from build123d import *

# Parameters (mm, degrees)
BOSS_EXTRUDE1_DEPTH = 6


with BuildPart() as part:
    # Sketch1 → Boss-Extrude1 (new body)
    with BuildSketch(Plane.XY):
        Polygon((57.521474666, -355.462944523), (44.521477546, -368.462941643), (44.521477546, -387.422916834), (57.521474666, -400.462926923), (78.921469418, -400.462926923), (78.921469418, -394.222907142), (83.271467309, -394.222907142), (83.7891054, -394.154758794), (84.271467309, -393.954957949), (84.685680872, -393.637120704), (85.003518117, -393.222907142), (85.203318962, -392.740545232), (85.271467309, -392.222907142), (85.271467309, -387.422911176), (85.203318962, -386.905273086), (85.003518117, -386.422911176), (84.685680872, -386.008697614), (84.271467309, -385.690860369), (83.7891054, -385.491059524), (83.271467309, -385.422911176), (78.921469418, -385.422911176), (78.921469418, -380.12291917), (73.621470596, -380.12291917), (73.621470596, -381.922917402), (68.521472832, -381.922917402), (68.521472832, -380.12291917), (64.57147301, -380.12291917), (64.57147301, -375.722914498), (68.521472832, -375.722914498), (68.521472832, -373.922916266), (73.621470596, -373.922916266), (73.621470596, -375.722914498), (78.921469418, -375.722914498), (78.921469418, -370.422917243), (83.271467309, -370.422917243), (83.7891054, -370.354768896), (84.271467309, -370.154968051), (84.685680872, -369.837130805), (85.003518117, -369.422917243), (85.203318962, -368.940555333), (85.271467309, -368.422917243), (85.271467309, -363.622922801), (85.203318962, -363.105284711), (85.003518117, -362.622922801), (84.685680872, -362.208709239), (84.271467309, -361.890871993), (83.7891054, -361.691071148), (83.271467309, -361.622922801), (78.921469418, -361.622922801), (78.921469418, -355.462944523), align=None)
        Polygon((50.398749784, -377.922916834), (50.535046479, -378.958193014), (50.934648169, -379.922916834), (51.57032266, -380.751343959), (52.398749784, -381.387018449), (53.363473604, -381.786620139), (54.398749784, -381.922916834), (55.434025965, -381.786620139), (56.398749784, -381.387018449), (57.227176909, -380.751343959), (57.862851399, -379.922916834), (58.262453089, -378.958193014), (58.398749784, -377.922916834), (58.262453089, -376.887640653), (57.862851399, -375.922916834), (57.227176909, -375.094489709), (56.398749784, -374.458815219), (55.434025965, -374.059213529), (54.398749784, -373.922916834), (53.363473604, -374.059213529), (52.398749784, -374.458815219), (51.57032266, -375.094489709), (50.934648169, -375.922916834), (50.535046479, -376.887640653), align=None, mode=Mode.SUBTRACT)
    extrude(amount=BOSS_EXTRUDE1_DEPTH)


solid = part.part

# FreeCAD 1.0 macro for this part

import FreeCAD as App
import Part
import Sketcher
Q = App.Units.Quantity

doc = App.newDocument("Part")
params = doc.addObject("Spreadsheet::Sheet", "Params")
for row, (alias, value) in enumerate([
    ("sketch1_width", "5.299999 mm"),
    ("sketch1_height", "1.799998 mm"),
    ("sketch1_width2", "3.95 mm"),
    ("pad1_length", "6 mm"),
], start=1):
    params.set(f"A{row}", alias)
    params.set(f"B{row}", "=" + value)
    params.setAlias(f"B{row}", alias)

body = doc.addObject("PartDesign::Body", "Body")

sketch1 = body.newObject("Sketcher::SketchObject", "Sketch")
sketch1.AttachmentSupport = (doc.getObject("XY_Plane"), [""])
sketch1.MapMode = "FlatFace"
sketch1.addGeometry(Part.LineSegment(App.Vector(57.521475, -355.462945, 0), App.Vector(44.521478, -368.462942, 0)), False)
sketch1.addGeometry(Part.LineSegment(App.Vector(44.521478, -368.462942, 0), App.Vector(44.521478, -387.422917, 0)), False)
sketch1.addGeometry(Part.LineSegment(App.Vector(44.521478, -387.422917, 0), App.Vector(57.521475, -400.462927, 0)), False)
sketch1.addGeometry(Part.LineSegment(App.Vector(57.521475, -400.462927, 0), App.Vector(78.921469, -400.462927, 0)), False)
sketch1.addGeometry(Part.LineSegment(App.Vector(78.921469, -400.462927, 0), App.Vector(78.921469, -394.222907, 0)), False)
sketch1.addGeometry(Part.LineSegment(App.Vector(78.921469, -394.222907, 0), App.Vector(83.271467, -394.222907, 0)), False)
sketch1.addGeometry(Part.LineSegment(App.Vector(83.271467, -394.222907, 0), App.Vector(83.789105, -394.154759, 0)), False)
sketch1.addGeometry(Part.LineSegment(App.Vector(83.789105, -394.154759, 0), App.Vector(84.271467, -393.954958, 0)), False)
sketch1.addGeometry(Part.LineSegment(App.Vector(84.271467, -393.954958, 0), App.Vector(84.685681, -393.637121, 0)), False)
sketch1.addGeometry(Part.LineSegment(App.Vector(84.685681, -393.637121, 0), App.Vector(85.003518, -393.222907, 0)), False)
sketch1.addGeometry(Part.LineSegment(App.Vector(85.003518, -393.222907, 0), App.Vector(85.203319, -392.740545, 0)), False)
sketch1.addGeometry(Part.LineSegment(App.Vector(85.203319, -392.740545, 0), App.Vector(85.271467, -392.222907, 0)), False)
sketch1.addGeometry(Part.LineSegment(App.Vector(85.271467, -392.222907, 0), App.Vector(85.271467, -387.422911, 0)), False)
sketch1.addGeometry(Part.LineSegment(App.Vector(85.271467, -387.422911, 0), App.Vector(85.203319, -386.905273, 0)), False)
sketch1.addGeometry(Part.LineSegment(App.Vector(85.203319, -386.905273, 0), App.Vector(85.003518, -386.422911, 0)), False)
sketch1.addGeometry(Part.LineSegment(App.Vector(85.003518, -386.422911, 0), App.Vector(84.685681, -386.008698, 0)), False)
sketch1.addGeometry(Part.LineSegment(App.Vector(84.685681, -386.008698, 0), App.Vector(84.271467, -385.69086, 0)), False)
sketch1.addGeometry(Part.LineSegment(App.Vector(84.271467, -385.69086, 0), App.Vector(83.789105, -385.49106, 0)), False)
sketch1.addGeometry(Part.LineSegment(App.Vector(83.789105, -385.49106, 0), App.Vector(83.271467, -385.422911, 0)), False)
sketch1.addGeometry(Part.LineSegment(App.Vector(83.271467, -385.422911, 0), App.Vector(78.921469, -385.422911, 0)), False)
sketch1.addGeometry(Part.LineSegment(App.Vector(78.921469, -385.422911, 0), App.Vector(78.921469, -380.122919, 0)), False)
sketch1.addGeometry(Part.LineSegment(App.Vector(78.921469, -380.122919, 0), App.Vector(73.621471, -380.122919, 0)), False)
sketch1.addGeometry(Part.LineSegment(App.Vector(73.621471, -380.122919, 0), App.Vector(73.621471, -381.922917, 0)), False)
sketch1.addGeometry(Part.LineSegment(App.Vector(73.621471, -381.922917, 0), App.Vector(68.521473, -381.922917, 0)), False)
sketch1.addGeometry(Part.LineSegment(App.Vector(68.521473, -381.922917, 0), App.Vector(68.521473, -380.122919, 0)), False)
sketch1.addGeometry(Part.LineSegment(App.Vector(68.521473, -380.122919, 0), App.Vector(64.571473, -380.122919, 0)), False)
sketch1.addGeometry(Part.LineSegment(App.Vector(64.571473, -380.122919, 0), App.Vector(64.571473, -375.722914, 0)), False)
sketch1.addGeometry(Part.LineSegment(App.Vector(64.571473, -375.722914, 0), App.Vector(68.521473, -375.722914, 0)), False)
sketch1.addGeometry(Part.LineSegment(App.Vector(68.521473, -375.722914, 0), App.Vector(68.521473, -373.922916, 0)), False)
sketch1.addGeometry(Part.LineSegment(App.Vector(68.521473, -373.922916, 0), App.Vector(73.621471, -373.922916, 0)), False)
sketch1.addGeometry(Part.LineSegment(App.Vector(73.621471, -373.922916, 0), App.Vector(73.621471, -375.722914, 0)), False)
sketch1.addGeometry(Part.LineSegment(App.Vector(73.621471, -375.722914, 0), App.Vector(78.921469, -375.722914, 0)), False)
sketch1.addGeometry(Part.LineSegment(App.Vector(78.921469, -375.722914, 0), App.Vector(78.921469, -370.422917, 0)), False)
sketch1.addGeometry(Part.LineSegment(App.Vector(78.921469, -370.422917, 0), App.Vector(83.271467, -370.422917, 0)), False)
sketch1.addGeometry(Part.LineSegment(App.Vector(83.271467, -370.422917, 0), App.Vector(83.789105, -370.354769, 0)), False)
sketch1.addGeometry(Part.LineSegment(App.Vector(83.789105, -370.354769, 0), App.Vector(84.271467, -370.154968, 0)), False)
sketch1.addGeometry(Part.LineSegment(App.Vector(84.271467, -370.154968, 0), App.Vector(84.685681, -369.837131, 0)), False)
sketch1.addGeometry(Part.LineSegment(App.Vector(84.685681, -369.837131, 0), App.Vector(85.003518, -369.422917, 0)), False)
sketch1.addGeometry(Part.LineSegment(App.Vector(85.003518, -369.422917, 0), App.Vector(85.203319, -368.940555, 0)), False)
sketch1.addGeometry(Part.LineSegment(App.Vector(85.203319, -368.940555, 0), App.Vector(85.271467, -368.422917, 0)), False)
sketch1.addGeometry(Part.LineSegment(App.Vector(85.271467, -368.422917, 0), App.Vector(85.271467, -363.622923, 0)), False)
sketch1.addGeometry(Part.LineSegment(App.Vector(85.271467, -363.622923, 0), App.Vector(85.203319, -363.105285, 0)), False)
sketch1.addGeometry(Part.LineSegment(App.Vector(85.203319, -363.105285, 0), App.Vector(85.003518, -362.622923, 0)), False)
sketch1.addGeometry(Part.LineSegment(App.Vector(85.003518, -362.622923, 0), App.Vector(84.685681, -362.208709, 0)), False)
sketch1.addGeometry(Part.LineSegment(App.Vector(84.685681, -362.208709, 0), App.Vector(84.271467, -361.890872, 0)), False)
sketch1.addGeometry(Part.LineSegment(App.Vector(84.271467, -361.890872, 0), App.Vector(83.789105, -361.691071, 0)), False)
sketch1.addGeometry(Part.LineSegment(App.Vector(83.789105, -361.691071, 0), App.Vector(83.271467, -361.622923, 0)), False)
sketch1.addGeometry(Part.LineSegment(App.Vector(83.271467, -361.622923, 0), App.Vector(78.921469, -361.622923, 0)), False)
sketch1.addGeometry(Part.LineSegment(App.Vector(78.921469, -361.622923, 0), App.Vector(78.921469, -355.462945, 0)), False)
sketch1.addGeometry(Part.LineSegment(App.Vector(78.921469, -355.462945, 0), App.Vector(57.521475, -355.462945, 0)), False)
sketch1.addGeometry(Part.LineSegment(App.Vector(50.535046, -378.958193, 0), App.Vector(50.39875, -377.922917, 0)), False)
sketch1.addGeometry(Part.LineSegment(App.Vector(50.39875, -377.922917, 0), App.Vector(50.535046, -376.887641, 0)), False)
sketch1.addGeometry(Part.LineSegment(App.Vector(50.535046, -376.887641, 0), App.Vector(50.934648, -375.922917, 0)), False)
sketch1.addGeometry(Part.LineSegment(App.Vector(50.934648, -375.922917, 0), App.Vector(51.570323, -375.09449, 0)), False)
sketch1.addGeometry(Part.LineSegment(App.Vector(51.570323, -375.09449, 0), App.Vector(52.39875, -374.458815, 0)), False)
sketch1.addGeometry(Part.LineSegment(App.Vector(52.39875, -374.458815, 0), App.Vector(53.363474, -374.059214, 0)), False)
sketch1.addGeometry(Part.LineSegment(App.Vector(53.363474, -374.059214, 0), App.Vector(54.39875, -373.922917, 0)), False)
sketch1.addGeometry(Part.LineSegment(App.Vector(54.39875, -373.922917, 0), App.Vector(55.434026, -374.059214, 0)), False)
sketch1.addGeometry(Part.LineSegment(App.Vector(55.434026, -374.059214, 0), App.Vector(56.39875, -374.458815, 0)), False)
sketch1.addGeometry(Part.LineSegment(App.Vector(56.39875, -374.458815, 0), App.Vector(57.227177, -375.09449, 0)), False)
sketch1.addGeometry(Part.LineSegment(App.Vector(57.227177, -375.09449, 0), App.Vector(57.862851, -375.922917, 0)), False)
sketch1.addGeometry(Part.LineSegment(App.Vector(57.862851, -375.922917, 0), App.Vector(58.262453, -376.887641, 0)), False)
sketch1.addGeometry(Part.LineSegment(App.Vector(58.262453, -376.887641, 0), App.Vector(58.39875, -377.922917, 0)), False)
sketch1.addGeometry(Part.LineSegment(App.Vector(58.39875, -377.922917, 0), App.Vector(58.262453, -378.958193, 0)), False)
sketch1.addGeometry(Part.LineSegment(App.Vector(58.262453, -378.958193, 0), App.Vector(57.862851, -379.922917, 0)), False)
sketch1.addGeometry(Part.LineSegment(App.Vector(57.862851, -379.922917, 0), App.Vector(57.227177, -380.751344, 0)), False)
sketch1.addGeometry(Part.LineSegment(App.Vector(57.227177, -380.751344, 0), App.Vector(56.39875, -381.387018, 0)), False)
sketch1.addGeometry(Part.LineSegment(App.Vector(56.39875, -381.387018, 0), App.Vector(55.434026, -381.78662, 0)), False)
sketch1.addGeometry(Part.LineSegment(App.Vector(55.434026, -381.78662, 0), App.Vector(54.39875, -381.922917, 0)), False)
sketch1.addGeometry(Part.LineSegment(App.Vector(54.39875, -381.922917, 0), App.Vector(53.363474, -381.78662, 0)), False)
sketch1.addGeometry(Part.LineSegment(App.Vector(53.363474, -381.78662, 0), App.Vector(52.39875, -381.387018, 0)), False)
sketch1.addGeometry(Part.LineSegment(App.Vector(52.39875, -381.387018, 0), App.Vector(51.570323, -380.751344, 0)), False)
sketch1.addGeometry(Part.LineSegment(App.Vector(51.570323, -380.751344, 0), App.Vector(50.934648, -379.922917, 0)), False)
sketch1.addGeometry(Part.LineSegment(App.Vector(50.934648, -379.922917, 0), App.Vector(50.535046, -378.958193, 0)), False)
sketch1.addConstraint(Sketcher.Constraint("Coincident", 0, 2, 1, 1))
sketch1.addConstraint(Sketcher.Constraint("Coincident", 1, 2, 2, 1))
sketch1.addConstraint(Sketcher.Constraint("Coincident", 2, 2, 3, 1))
sketch1.addConstraint(Sketcher.Constraint("Coincident", 3, 2, 4, 1))
sketch1.addConstraint(Sketcher.Constraint("Coincident", 4, 2, 5, 1))
sketch1.addConstraint(Sketcher.Constraint("Coincident", 5, 2, 6, 1))
sketch1.addConstraint(Sketcher.Constraint("Coincident", 6, 2, 7, 1))
sketch1.addConstraint(Sketcher.Constraint("Coincident", 7, 2, 8, 1))
sketch1.addConstraint(Sketcher.Constraint("Coincident", 8, 2, 9, 1))
sketch1.addConstraint(Sketcher.Constraint("Coincident", 9, 2, 10, 1))
sketch1.addConstraint(Sketcher.Constraint("Coincident", 10, 2, 11, 1))
sketch1.addConstraint(Sketcher.Constraint("Coincident", 11, 2, 12, 1))
sketch1.addConstraint(Sketcher.Constraint("Coincident", 12, 2, 13, 1))
sketch1.addConstraint(Sketcher.Constraint("Coincident", 13, 2, 14, 1))
sketch1.addConstraint(Sketcher.Constraint("Coincident", 14, 2, 15, 1))
sketch1.addConstraint(Sketcher.Constraint("Coincident", 15, 2, 16, 1))
sketch1.addConstraint(Sketcher.Constraint("Coincident", 16, 2, 17, 1))
sketch1.addConstraint(Sketcher.Constraint("Coincident", 17, 2, 18, 1))
sketch1.addConstraint(Sketcher.Constraint("Coincident", 18, 2, 19, 1))
sketch1.addConstraint(Sketcher.Constraint("Coincident", 19, 2, 20, 1))
sketch1.addConstraint(Sketcher.Constraint("Coincident", 20, 2, 21, 1))
sketch1.addConstraint(Sketcher.Constraint("Coincident", 21, 2, 22, 1))
sketch1.addConstraint(Sketcher.Constraint("Coincident", 22, 2, 23, 1))
sketch1.addConstraint(Sketcher.Constraint("Coincident", 23, 2, 24, 1))
sketch1.addConstraint(Sketcher.Constraint("Coincident", 24, 2, 25, 1))
sketch1.addConstraint(Sketcher.Constraint("Coincident", 25, 2, 26, 1))
sketch1.addConstraint(Sketcher.Constraint("Coincident", 26, 2, 27, 1))
sketch1.addConstraint(Sketcher.Constraint("Coincident", 27, 2, 28, 1))
sketch1.addConstraint(Sketcher.Constraint("Coincident", 28, 2, 29, 1))
sketch1.addConstraint(Sketcher.Constraint("Coincident", 29, 2, 30, 1))
sketch1.addConstraint(Sketcher.Constraint("Coincident", 30, 2, 31, 1))
sketch1.addConstraint(Sketcher.Constraint("Coincident", 31, 2, 32, 1))
sketch1.addConstraint(Sketcher.Constraint("Coincident", 32, 2, 33, 1))
sketch1.addConstraint(Sketcher.Constraint("Coincident", 33, 2, 34, 1))
sketch1.addConstraint(Sketcher.Constraint("Coincident", 34, 2, 35, 1))
sketch1.addConstraint(Sketcher.Constraint("Coincident", 35, 2, 36, 1))
sketch1.addConstraint(Sketcher.Constraint("Coincident", 36, 2, 37, 1))
sketch1.addConstraint(Sketcher.Constraint("Coincident", 37, 2, 38, 1))
sketch1.addConstraint(Sketcher.Constraint("Coincident", 38, 2, 39, 1))
sketch1.addConstraint(Sketcher.Constraint("Coincident", 39, 2, 40, 1))
sketch1.addConstraint(Sketcher.Constraint("Coincident", 40, 2, 41, 1))
sketch1.addConstraint(Sketcher.Constraint("Coincident", 41, 2, 42, 1))
sketch1.addConstraint(Sketcher.Constraint("Coincident", 42, 2, 43, 1))
sketch1.addConstraint(Sketcher.Constraint("Coincident", 43, 2, 44, 1))
sketch1.addConstraint(Sketcher.Constraint("Coincident", 44, 2, 45, 1))
sketch1.addConstraint(Sketcher.Constraint("Coincident", 45, 2, 46, 1))
sketch1.addConstraint(Sketcher.Constraint("Coincident", 46, 2, 47, 1))
sketch1.addConstraint(Sketcher.Constraint("Coincident", 47, 2, 48, 1))
sketch1.addConstraint(Sketcher.Constraint("Coincident", 48, 2, 49, 1))
sketch1.addConstraint(Sketcher.Constraint("Coincident", 49, 2, 0, 1))
sketch1.addConstraint(Sketcher.Constraint("Coincident", 50, 2, 51, 1))
sketch1.addConstraint(Sketcher.Constraint("Coincident", 51, 2, 52, 1))
sketch1.addConstraint(Sketcher.Constraint("Coincident", 52, 2, 53, 1))
sketch1.addConstraint(Sketcher.Constraint("Coincident", 53, 2, 54, 1))
sketch1.addConstraint(Sketcher.Constraint("Coincident", 54, 2, 55, 1))
sketch1.addConstraint(Sketcher.Constraint("Coincident", 55, 2, 56, 1))
sketch1.addConstraint(Sketcher.Constraint("Coincident", 56, 2, 57, 1))
sketch1.addConstraint(Sketcher.Constraint("Coincident", 57, 2, 58, 1))
sketch1.addConstraint(Sketcher.Constraint("Coincident", 58, 2, 59, 1))
sketch1.addConstraint(Sketcher.Constraint("Coincident", 59, 2, 60, 1))
sketch1.addConstraint(Sketcher.Constraint("Coincident", 60, 2, 61, 1))
sketch1.addConstraint(Sketcher.Constraint("Coincident", 61, 2, 62, 1))
sketch1.addConstraint(Sketcher.Constraint("Coincident", 62, 2, 63, 1))
sketch1.addConstraint(Sketcher.Constraint("Coincident", 63, 2, 64, 1))
sketch1.addConstraint(Sketcher.Constraint("Coincident", 64, 2, 65, 1))
sketch1.addConstraint(Sketcher.Constraint("Coincident", 65, 2, 66, 1))
sketch1.addConstraint(Sketcher.Constraint("Coincident", 66, 2, 67, 1))
sketch1.addConstraint(Sketcher.Constraint("Coincident", 67, 2, 68, 1))
sketch1.addConstraint(Sketcher.Constraint("Coincident", 68, 2, 69, 1))
sketch1.addConstraint(Sketcher.Constraint("Coincident", 69, 2, 70, 1))
sketch1.addConstraint(Sketcher.Constraint("Coincident", 70, 2, 71, 1))
sketch1.addConstraint(Sketcher.Constraint("Coincident", 71, 2, 72, 1))
sketch1.addConstraint(Sketcher.Constraint("Coincident", 72, 2, 73, 1))
sketch1.addConstraint(Sketcher.Constraint("Coincident", 73, 2, 50, 1))
sketch1.addConstraint(Sketcher.Constraint("Vertical", 1))
sketch1.addConstraint(Sketcher.Constraint("Horizontal", 3))
sketch1.addConstraint(Sketcher.Constraint("Vertical", 4))
sketch1.addConstraint(Sketcher.Constraint("Horizontal", 5))
sketch1.addConstraint(Sketcher.Constraint("Vertical", 12))
sketch1.addConstraint(Sketcher.Constraint("Horizontal", 19))
sketch1.addConstraint(Sketcher.Constraint("Vertical", 20))
sketch1.addConstraint(Sketcher.Constraint("Horizontal", 21))
sketch1.addConstraint(Sketcher.Constraint("Vertical", 22))
sketch1.addConstraint(Sketcher.Constraint("Horizontal", 23))
sketch1.addConstraint(Sketcher.Constraint("Vertical", 24))
sketch1.addConstraint(Sketcher.Constraint("Horizontal", 25))
sketch1.addConstraint(Sketcher.Constraint("Vertical", 26))
sketch1.addConstraint(Sketcher.Constraint("Horizontal", 27))
sketch1.addConstraint(Sketcher.Constraint("Vertical", 28))
sketch1.addConstraint(Sketcher.Constraint("Horizontal", 29))
sketch1.addConstraint(Sketcher.Constraint("Vertical", 30))
sketch1.addConstraint(Sketcher.Constraint("Horizontal", 31))
sketch1.addConstraint(Sketcher.Constraint("Vertical", 32))
sketch1.addConstraint(Sketcher.Constraint("Horizontal", 33))
sketch1.addConstraint(Sketcher.Constraint("Vertical", 40))
sketch1.addConstraint(Sketcher.Constraint("Horizontal", 47))
sketch1.addConstraint(Sketcher.Constraint("Vertical", 48))
sketch1.addConstraint(Sketcher.Constraint("Horizontal", 49))
sketch1.addConstraint(Sketcher.Constraint("Perpendicular", 6, 13))
sketch1.addConstraint(Sketcher.Constraint("Perpendicular", 7, 14))
sketch1.addConstraint(Sketcher.Constraint("Perpendicular", 8, 15))
sketch1.addConstraint(Sketcher.Constraint("Perpendicular", 9, 16))
sketch1.addConstraint(Sketcher.Constraint("Perpendicular", 10, 17))
sketch1.addConstraint(Sketcher.Constraint("Perpendicular", 11, 18))
sketch1.addConstraint(Sketcher.Constraint("Perpendicular", 13, 34))
sketch1.addConstraint(Sketcher.Constraint("Perpendicular", 14, 35))
sketch1.addConstraint(Sketcher.Constraint("Perpendicular", 15, 36))
sketch1.addConstraint(Sketcher.Constraint("Perpendicular", 16, 37))
sketch1.addConstraint(Sketcher.Constraint("Perpendicular", 17, 38))
sketch1.addConstraint(Sketcher.Constraint("Perpendicular", 18, 39))
sketch1.addConstraint(Sketcher.Constraint("Perpendicular", 34, 41))
sketch1.addConstraint(Sketcher.Constraint("Perpendicular", 35, 42))
sketch1.addConstraint(Sketcher.Constraint("Perpendicular", 36, 43))
sketch1.addConstraint(Sketcher.Constraint("Perpendicular", 37, 44))
sketch1.addConstraint(Sketcher.Constraint("Perpendicular", 38, 45))
sketch1.addConstraint(Sketcher.Constraint("Perpendicular", 39, 46))
sketch1.addConstraint(Sketcher.Constraint("Parallel", 41, 50))
sketch1.addConstraint(Sketcher.Constraint("Perpendicular", 46, 51))
sketch1.addConstraint(Sketcher.Constraint("Perpendicular", 45, 52))
sketch1.addConstraint(Sketcher.Constraint("Perpendicular", 44, 53))
sketch1.addConstraint(Sketcher.Constraint("Perpendicular", 43, 54))
sketch1.addConstraint(Sketcher.Constraint("Perpendicular", 42, 55))
sketch1.addConstraint(Sketcher.Constraint("Perpendicular", 50, 56))
sketch1.addConstraint(Sketcher.Constraint("Perpendicular", 51, 57))
sketch1.addConstraint(Sketcher.Constraint("Perpendicular", 52, 58))
sketch1.addConstraint(Sketcher.Constraint("Perpendicular", 53, 59))
sketch1.addConstraint(Sketcher.Constraint("Perpendicular", 54, 60))
sketch1.addConstraint(Sketcher.Constraint("Perpendicular", 55, 61))
sketch1.addConstraint(Sketcher.Constraint("Perpendicular", 56, 62))
sketch1.addConstraint(Sketcher.Constraint("Perpendicular", 57, 63))
sketch1.addConstraint(Sketcher.Constraint("Perpendicular", 58, 64))
sketch1.addConstraint(Sketcher.Constraint("Perpendicular", 59, 65))
sketch1.addConstraint(Sketcher.Constraint("Perpendicular", 60, 66))
sketch1.addConstraint(Sketcher.Constraint("Perpendicular", 61, 67))
sketch1.addConstraint(Sketcher.Constraint("Perpendicular", 62, 68))
sketch1.addConstraint(Sketcher.Constraint("Perpendicular", 63, 69))
sketch1.addConstraint(Sketcher.Constraint("Perpendicular", 64, 70))
sketch1.addConstraint(Sketcher.Constraint("Perpendicular", 65, 71))
sketch1.addConstraint(Sketcher.Constraint("Perpendicular", 66, 72))
sketch1.addConstraint(Sketcher.Constraint("Perpendicular", 67, 73))
sketch1.addConstraint(Sketcher.Constraint("Horizontal", 21, 2, 24, 2))
sketch1.addConstraint(Sketcher.Constraint("Horizontal", 27, 2, 30, 2))
sketch1.addConstraint(Sketcher.Constraint("Horizontal", 29, 2, 56, 2))
sketch1.addConstraint(Sketcher.Constraint("Horizontal", 55, 2, 57, 2))
sketch1.addConstraint(Sketcher.Constraint("Horizontal", 54, 2, 58, 2))
sketch1.addConstraint(Sketcher.Constraint("Horizontal", 53, 2, 59, 2))
sketch1.addConstraint(Sketcher.Constraint("Horizontal", 52, 2, 60, 2))
sketch1.addConstraint(Sketcher.Constraint("Horizontal", 51, 2, 61, 2))
sketch1.addConstraint(Sketcher.Constraint("Horizontal", 50, 2, 62, 2))
sketch1.addConstraint(Sketcher.Constraint("Horizontal", 23, 2, 68, 2))
sketch1.addConstraint(Sketcher.Constraint("Horizontal", 67, 2, 69, 2))
sketch1.addConstraint(Sketcher.Constraint("Horizontal", 66, 2, 70, 2))
sketch1.addConstraint(Sketcher.Constraint("Horizontal", 65, 2, 71, 2))
sketch1.addConstraint(Sketcher.Constraint("Horizontal", 64, 2, 72, 2))
sketch1.addConstraint(Sketcher.Constraint("Horizontal", 63, 2, 73, 2))
sketch1.addConstraint(Sketcher.Constraint("Vertical", 10, 2, 13, 2))
sketch1.addConstraint(Sketcher.Constraint("Vertical", 9, 2, 14, 2))
sketch1.addConstraint(Sketcher.Constraint("Vertical", 8, 2, 15, 2))
sketch1.addConstraint(Sketcher.Constraint("Vertical", 7, 2, 16, 2))
sketch1.addConstraint(Sketcher.Constraint("Vertical", 6, 2, 17, 2))
sketch1.addConstraint(Sketcher.Constraint("Vertical", 5, 2, 18, 2))
sketch1.addConstraint(Sketcher.Constraint("Vertical", 4, 2, 19, 2))
sketch1.addConstraint(Sketcher.Constraint("Vertical", 24, 2, 27, 2))
sketch1.addConstraint(Sketcher.Constraint("Vertical", 22, 2, 29, 2))
sketch1.addConstraint(Sketcher.Constraint("Vertical", 20, 2, 31, 2))
sketch1.addConstraint(Sketcher.Constraint("Vertical", 18, 2, 33, 2))
sketch1.addConstraint(Sketcher.Constraint("Vertical", 17, 2, 34, 2))
sketch1.addConstraint(Sketcher.Constraint("Vertical", 16, 2, 35, 2))
sketch1.addConstraint(Sketcher.Constraint("Vertical", 15, 2, 36, 2))
sketch1.addConstraint(Sketcher.Constraint("Vertical", 14, 2, 37, 2))
sketch1.addConstraint(Sketcher.Constraint("Vertical", 13, 2, 38, 2))
sketch1.addConstraint(Sketcher.Constraint("Vertical", 12, 2, 39, 2))
sketch1.addConstraint(Sketcher.Constraint("Vertical", 38, 2, 41, 2))
sketch1.addConstraint(Sketcher.Constraint("Vertical", 37, 2, 42, 2))
sketch1.addConstraint(Sketcher.Constraint("Vertical", 36, 2, 43, 2))
sketch1.addConstraint(Sketcher.Constraint("Vertical", 35, 2, 44, 2))
sketch1.addConstraint(Sketcher.Constraint("Vertical", 34, 2, 45, 2))
sketch1.addConstraint(Sketcher.Constraint("Vertical", 33, 2, 46, 2))
sketch1.addConstraint(Sketcher.Constraint("Vertical", 32, 2, 47, 2))
sketch1.addConstraint(Sketcher.Constraint("Vertical", 2, 2, 49, 2))
sketch1.addConstraint(Sketcher.Constraint("Vertical", 61, 2, 63, 2))
sketch1.addConstraint(Sketcher.Constraint("Vertical", 60, 2, 64, 2))
sketch1.addConstraint(Sketcher.Constraint("Vertical", 59, 2, 65, 2))
sketch1.addConstraint(Sketcher.Constraint("Vertical", 58, 2, 66, 2))
sketch1.addConstraint(Sketcher.Constraint("Vertical", 57, 2, 67, 2))
sketch1.addConstraint(Sketcher.Constraint("Vertical", 56, 2, 68, 2))
sketch1.addConstraint(Sketcher.Constraint("Vertical", 55, 2, 69, 2))
sketch1.addConstraint(Sketcher.Constraint("Vertical", 54, 2, 70, 2))
sketch1.addConstraint(Sketcher.Constraint("Equal", 24, 28))
sketch1.addConstraint(Sketcher.Constraint("Equal", 31, 32))
sketch1.addConstraint(Sketcher.Constraint("Equal", 12, 40))
sketch1.addConstraint(Sketcher.Constraint("Equal", 6, 7))
sketch1.addConstraint(Sketcher.Constraint("Equal", 7, 8))
sketch1.addConstraint(Sketcher.Constraint("Equal", 8, 9))
sketch1.addConstraint(Sketcher.Constraint("Equal", 9, 10))
sketch1.addConstraint(Sketcher.Constraint("Equal", 10, 11))
sketch1.addConstraint(Sketcher.Constraint("Equal", 51, 52))
sketch1.addConstraint(Sketcher.Constraint("Equal", 52, 53))
sketch1.addConstraint(Sketcher.Constraint("Equal", 53, 54))
sketch1.addConstraint(Sketcher.Constraint("Equal", 54, 55))
sketch1.addConstraint(Sketcher.Constraint("Equal", 55, 56))
sketch1.addConstraint(Sketcher.Constraint("Angle", 0, Q("-135 deg")))
sketch1.addConstraint(Sketcher.Constraint("DistanceX", 21, 2, 21, 1, Q("5.299999 mm")))
sketch1.addConstraint(Sketcher.Constraint("DistanceY", 22, 2, 22, 1, Q("1.799998 mm")))
sketch1.addConstraint(Sketcher.Constraint("Angle", 6, Q("7.5 deg")))
sketch1.addConstraint(Sketcher.Constraint("Angle", 7, Q("22.5 deg")))
sketch1.addConstraint(Sketcher.Constraint("Angle", 8, Q("37.5 deg")))
sketch1.addConstraint(Sketcher.Constraint("DistanceX", 25, 2, 25, 1, Q("3.95 mm")))
sketch1.addConstraint(Sketcher.Constraint("DistanceY", 4, 1, 4, 2, Q("6.24002 mm")))
sketch1.addConstraint(Sketcher.Constraint("DistanceY", 48, 1, 48, 2, Q("6.159978 mm")))
sketch1.addConstraint(Sketcher.Constraint("Distance", 50, Q("1.04421 mm")))
sketch1.addConstraint(Sketcher.Constraint("DistanceX", 3, 1, 3, 2, Q("21.399995 mm")))
sketch1.addConstraint(Sketcher.Constraint("DistanceX", 5, 1, 5, 2, Q("4.349998 mm")))
sketch1.addConstraint(Sketcher.Constraint("DistanceX", 23, 2, 23, 1, Q("5.099998 mm")))
sketch1.addConstraint(Sketcher.Constraint("DistanceY", 1, 2, 1, 1, Q("18.959975 mm")))
sketch1.addConstraint(Sketcher.Constraint("DistanceY", 12, 1, 12, 2, Q("4.799996 mm")))
sketch1.addConstraint(Sketcher.Constraint("DistanceY", 20, 1, 20, 2, Q("5.299992 mm")))
sketch1.addConstraint(Sketcher.Constraint("DistanceY", 0, 2, -1, 1, Q("368.462942 mm")))
sketch1.addConstraint(Sketcher.Constraint("DistanceX", -1, 1, 3, 2, Q("78.921469 mm")))
sketch1.addConstraint(Sketcher.Constraint("DistanceY", 6, 2, -1, 1, Q("394.154759 mm")))
sketch1.addConstraint(Sketcher.Constraint("DistanceX", -1, 1, 8, 2, Q("84.685681 mm")))
sketch1.addConstraint(Sketcher.Constraint("DistanceX", -1, 1, 50, 2, Q("50.39875 mm")))
sketch1.setExpression("Constraints[202]", "Params.sketch1_width")
sketch1.setExpression("Constraints[203]", "Params.sketch1_height")
sketch1.setExpression("Constraints[207]", "Params.sketch1_width2")
pad1 = body.newObject("PartDesign::Pad", "Pad")
pad1.Profile = sketch1
pad1.setExpression("Length", "Params.pad1_length")

doc.recompute()
